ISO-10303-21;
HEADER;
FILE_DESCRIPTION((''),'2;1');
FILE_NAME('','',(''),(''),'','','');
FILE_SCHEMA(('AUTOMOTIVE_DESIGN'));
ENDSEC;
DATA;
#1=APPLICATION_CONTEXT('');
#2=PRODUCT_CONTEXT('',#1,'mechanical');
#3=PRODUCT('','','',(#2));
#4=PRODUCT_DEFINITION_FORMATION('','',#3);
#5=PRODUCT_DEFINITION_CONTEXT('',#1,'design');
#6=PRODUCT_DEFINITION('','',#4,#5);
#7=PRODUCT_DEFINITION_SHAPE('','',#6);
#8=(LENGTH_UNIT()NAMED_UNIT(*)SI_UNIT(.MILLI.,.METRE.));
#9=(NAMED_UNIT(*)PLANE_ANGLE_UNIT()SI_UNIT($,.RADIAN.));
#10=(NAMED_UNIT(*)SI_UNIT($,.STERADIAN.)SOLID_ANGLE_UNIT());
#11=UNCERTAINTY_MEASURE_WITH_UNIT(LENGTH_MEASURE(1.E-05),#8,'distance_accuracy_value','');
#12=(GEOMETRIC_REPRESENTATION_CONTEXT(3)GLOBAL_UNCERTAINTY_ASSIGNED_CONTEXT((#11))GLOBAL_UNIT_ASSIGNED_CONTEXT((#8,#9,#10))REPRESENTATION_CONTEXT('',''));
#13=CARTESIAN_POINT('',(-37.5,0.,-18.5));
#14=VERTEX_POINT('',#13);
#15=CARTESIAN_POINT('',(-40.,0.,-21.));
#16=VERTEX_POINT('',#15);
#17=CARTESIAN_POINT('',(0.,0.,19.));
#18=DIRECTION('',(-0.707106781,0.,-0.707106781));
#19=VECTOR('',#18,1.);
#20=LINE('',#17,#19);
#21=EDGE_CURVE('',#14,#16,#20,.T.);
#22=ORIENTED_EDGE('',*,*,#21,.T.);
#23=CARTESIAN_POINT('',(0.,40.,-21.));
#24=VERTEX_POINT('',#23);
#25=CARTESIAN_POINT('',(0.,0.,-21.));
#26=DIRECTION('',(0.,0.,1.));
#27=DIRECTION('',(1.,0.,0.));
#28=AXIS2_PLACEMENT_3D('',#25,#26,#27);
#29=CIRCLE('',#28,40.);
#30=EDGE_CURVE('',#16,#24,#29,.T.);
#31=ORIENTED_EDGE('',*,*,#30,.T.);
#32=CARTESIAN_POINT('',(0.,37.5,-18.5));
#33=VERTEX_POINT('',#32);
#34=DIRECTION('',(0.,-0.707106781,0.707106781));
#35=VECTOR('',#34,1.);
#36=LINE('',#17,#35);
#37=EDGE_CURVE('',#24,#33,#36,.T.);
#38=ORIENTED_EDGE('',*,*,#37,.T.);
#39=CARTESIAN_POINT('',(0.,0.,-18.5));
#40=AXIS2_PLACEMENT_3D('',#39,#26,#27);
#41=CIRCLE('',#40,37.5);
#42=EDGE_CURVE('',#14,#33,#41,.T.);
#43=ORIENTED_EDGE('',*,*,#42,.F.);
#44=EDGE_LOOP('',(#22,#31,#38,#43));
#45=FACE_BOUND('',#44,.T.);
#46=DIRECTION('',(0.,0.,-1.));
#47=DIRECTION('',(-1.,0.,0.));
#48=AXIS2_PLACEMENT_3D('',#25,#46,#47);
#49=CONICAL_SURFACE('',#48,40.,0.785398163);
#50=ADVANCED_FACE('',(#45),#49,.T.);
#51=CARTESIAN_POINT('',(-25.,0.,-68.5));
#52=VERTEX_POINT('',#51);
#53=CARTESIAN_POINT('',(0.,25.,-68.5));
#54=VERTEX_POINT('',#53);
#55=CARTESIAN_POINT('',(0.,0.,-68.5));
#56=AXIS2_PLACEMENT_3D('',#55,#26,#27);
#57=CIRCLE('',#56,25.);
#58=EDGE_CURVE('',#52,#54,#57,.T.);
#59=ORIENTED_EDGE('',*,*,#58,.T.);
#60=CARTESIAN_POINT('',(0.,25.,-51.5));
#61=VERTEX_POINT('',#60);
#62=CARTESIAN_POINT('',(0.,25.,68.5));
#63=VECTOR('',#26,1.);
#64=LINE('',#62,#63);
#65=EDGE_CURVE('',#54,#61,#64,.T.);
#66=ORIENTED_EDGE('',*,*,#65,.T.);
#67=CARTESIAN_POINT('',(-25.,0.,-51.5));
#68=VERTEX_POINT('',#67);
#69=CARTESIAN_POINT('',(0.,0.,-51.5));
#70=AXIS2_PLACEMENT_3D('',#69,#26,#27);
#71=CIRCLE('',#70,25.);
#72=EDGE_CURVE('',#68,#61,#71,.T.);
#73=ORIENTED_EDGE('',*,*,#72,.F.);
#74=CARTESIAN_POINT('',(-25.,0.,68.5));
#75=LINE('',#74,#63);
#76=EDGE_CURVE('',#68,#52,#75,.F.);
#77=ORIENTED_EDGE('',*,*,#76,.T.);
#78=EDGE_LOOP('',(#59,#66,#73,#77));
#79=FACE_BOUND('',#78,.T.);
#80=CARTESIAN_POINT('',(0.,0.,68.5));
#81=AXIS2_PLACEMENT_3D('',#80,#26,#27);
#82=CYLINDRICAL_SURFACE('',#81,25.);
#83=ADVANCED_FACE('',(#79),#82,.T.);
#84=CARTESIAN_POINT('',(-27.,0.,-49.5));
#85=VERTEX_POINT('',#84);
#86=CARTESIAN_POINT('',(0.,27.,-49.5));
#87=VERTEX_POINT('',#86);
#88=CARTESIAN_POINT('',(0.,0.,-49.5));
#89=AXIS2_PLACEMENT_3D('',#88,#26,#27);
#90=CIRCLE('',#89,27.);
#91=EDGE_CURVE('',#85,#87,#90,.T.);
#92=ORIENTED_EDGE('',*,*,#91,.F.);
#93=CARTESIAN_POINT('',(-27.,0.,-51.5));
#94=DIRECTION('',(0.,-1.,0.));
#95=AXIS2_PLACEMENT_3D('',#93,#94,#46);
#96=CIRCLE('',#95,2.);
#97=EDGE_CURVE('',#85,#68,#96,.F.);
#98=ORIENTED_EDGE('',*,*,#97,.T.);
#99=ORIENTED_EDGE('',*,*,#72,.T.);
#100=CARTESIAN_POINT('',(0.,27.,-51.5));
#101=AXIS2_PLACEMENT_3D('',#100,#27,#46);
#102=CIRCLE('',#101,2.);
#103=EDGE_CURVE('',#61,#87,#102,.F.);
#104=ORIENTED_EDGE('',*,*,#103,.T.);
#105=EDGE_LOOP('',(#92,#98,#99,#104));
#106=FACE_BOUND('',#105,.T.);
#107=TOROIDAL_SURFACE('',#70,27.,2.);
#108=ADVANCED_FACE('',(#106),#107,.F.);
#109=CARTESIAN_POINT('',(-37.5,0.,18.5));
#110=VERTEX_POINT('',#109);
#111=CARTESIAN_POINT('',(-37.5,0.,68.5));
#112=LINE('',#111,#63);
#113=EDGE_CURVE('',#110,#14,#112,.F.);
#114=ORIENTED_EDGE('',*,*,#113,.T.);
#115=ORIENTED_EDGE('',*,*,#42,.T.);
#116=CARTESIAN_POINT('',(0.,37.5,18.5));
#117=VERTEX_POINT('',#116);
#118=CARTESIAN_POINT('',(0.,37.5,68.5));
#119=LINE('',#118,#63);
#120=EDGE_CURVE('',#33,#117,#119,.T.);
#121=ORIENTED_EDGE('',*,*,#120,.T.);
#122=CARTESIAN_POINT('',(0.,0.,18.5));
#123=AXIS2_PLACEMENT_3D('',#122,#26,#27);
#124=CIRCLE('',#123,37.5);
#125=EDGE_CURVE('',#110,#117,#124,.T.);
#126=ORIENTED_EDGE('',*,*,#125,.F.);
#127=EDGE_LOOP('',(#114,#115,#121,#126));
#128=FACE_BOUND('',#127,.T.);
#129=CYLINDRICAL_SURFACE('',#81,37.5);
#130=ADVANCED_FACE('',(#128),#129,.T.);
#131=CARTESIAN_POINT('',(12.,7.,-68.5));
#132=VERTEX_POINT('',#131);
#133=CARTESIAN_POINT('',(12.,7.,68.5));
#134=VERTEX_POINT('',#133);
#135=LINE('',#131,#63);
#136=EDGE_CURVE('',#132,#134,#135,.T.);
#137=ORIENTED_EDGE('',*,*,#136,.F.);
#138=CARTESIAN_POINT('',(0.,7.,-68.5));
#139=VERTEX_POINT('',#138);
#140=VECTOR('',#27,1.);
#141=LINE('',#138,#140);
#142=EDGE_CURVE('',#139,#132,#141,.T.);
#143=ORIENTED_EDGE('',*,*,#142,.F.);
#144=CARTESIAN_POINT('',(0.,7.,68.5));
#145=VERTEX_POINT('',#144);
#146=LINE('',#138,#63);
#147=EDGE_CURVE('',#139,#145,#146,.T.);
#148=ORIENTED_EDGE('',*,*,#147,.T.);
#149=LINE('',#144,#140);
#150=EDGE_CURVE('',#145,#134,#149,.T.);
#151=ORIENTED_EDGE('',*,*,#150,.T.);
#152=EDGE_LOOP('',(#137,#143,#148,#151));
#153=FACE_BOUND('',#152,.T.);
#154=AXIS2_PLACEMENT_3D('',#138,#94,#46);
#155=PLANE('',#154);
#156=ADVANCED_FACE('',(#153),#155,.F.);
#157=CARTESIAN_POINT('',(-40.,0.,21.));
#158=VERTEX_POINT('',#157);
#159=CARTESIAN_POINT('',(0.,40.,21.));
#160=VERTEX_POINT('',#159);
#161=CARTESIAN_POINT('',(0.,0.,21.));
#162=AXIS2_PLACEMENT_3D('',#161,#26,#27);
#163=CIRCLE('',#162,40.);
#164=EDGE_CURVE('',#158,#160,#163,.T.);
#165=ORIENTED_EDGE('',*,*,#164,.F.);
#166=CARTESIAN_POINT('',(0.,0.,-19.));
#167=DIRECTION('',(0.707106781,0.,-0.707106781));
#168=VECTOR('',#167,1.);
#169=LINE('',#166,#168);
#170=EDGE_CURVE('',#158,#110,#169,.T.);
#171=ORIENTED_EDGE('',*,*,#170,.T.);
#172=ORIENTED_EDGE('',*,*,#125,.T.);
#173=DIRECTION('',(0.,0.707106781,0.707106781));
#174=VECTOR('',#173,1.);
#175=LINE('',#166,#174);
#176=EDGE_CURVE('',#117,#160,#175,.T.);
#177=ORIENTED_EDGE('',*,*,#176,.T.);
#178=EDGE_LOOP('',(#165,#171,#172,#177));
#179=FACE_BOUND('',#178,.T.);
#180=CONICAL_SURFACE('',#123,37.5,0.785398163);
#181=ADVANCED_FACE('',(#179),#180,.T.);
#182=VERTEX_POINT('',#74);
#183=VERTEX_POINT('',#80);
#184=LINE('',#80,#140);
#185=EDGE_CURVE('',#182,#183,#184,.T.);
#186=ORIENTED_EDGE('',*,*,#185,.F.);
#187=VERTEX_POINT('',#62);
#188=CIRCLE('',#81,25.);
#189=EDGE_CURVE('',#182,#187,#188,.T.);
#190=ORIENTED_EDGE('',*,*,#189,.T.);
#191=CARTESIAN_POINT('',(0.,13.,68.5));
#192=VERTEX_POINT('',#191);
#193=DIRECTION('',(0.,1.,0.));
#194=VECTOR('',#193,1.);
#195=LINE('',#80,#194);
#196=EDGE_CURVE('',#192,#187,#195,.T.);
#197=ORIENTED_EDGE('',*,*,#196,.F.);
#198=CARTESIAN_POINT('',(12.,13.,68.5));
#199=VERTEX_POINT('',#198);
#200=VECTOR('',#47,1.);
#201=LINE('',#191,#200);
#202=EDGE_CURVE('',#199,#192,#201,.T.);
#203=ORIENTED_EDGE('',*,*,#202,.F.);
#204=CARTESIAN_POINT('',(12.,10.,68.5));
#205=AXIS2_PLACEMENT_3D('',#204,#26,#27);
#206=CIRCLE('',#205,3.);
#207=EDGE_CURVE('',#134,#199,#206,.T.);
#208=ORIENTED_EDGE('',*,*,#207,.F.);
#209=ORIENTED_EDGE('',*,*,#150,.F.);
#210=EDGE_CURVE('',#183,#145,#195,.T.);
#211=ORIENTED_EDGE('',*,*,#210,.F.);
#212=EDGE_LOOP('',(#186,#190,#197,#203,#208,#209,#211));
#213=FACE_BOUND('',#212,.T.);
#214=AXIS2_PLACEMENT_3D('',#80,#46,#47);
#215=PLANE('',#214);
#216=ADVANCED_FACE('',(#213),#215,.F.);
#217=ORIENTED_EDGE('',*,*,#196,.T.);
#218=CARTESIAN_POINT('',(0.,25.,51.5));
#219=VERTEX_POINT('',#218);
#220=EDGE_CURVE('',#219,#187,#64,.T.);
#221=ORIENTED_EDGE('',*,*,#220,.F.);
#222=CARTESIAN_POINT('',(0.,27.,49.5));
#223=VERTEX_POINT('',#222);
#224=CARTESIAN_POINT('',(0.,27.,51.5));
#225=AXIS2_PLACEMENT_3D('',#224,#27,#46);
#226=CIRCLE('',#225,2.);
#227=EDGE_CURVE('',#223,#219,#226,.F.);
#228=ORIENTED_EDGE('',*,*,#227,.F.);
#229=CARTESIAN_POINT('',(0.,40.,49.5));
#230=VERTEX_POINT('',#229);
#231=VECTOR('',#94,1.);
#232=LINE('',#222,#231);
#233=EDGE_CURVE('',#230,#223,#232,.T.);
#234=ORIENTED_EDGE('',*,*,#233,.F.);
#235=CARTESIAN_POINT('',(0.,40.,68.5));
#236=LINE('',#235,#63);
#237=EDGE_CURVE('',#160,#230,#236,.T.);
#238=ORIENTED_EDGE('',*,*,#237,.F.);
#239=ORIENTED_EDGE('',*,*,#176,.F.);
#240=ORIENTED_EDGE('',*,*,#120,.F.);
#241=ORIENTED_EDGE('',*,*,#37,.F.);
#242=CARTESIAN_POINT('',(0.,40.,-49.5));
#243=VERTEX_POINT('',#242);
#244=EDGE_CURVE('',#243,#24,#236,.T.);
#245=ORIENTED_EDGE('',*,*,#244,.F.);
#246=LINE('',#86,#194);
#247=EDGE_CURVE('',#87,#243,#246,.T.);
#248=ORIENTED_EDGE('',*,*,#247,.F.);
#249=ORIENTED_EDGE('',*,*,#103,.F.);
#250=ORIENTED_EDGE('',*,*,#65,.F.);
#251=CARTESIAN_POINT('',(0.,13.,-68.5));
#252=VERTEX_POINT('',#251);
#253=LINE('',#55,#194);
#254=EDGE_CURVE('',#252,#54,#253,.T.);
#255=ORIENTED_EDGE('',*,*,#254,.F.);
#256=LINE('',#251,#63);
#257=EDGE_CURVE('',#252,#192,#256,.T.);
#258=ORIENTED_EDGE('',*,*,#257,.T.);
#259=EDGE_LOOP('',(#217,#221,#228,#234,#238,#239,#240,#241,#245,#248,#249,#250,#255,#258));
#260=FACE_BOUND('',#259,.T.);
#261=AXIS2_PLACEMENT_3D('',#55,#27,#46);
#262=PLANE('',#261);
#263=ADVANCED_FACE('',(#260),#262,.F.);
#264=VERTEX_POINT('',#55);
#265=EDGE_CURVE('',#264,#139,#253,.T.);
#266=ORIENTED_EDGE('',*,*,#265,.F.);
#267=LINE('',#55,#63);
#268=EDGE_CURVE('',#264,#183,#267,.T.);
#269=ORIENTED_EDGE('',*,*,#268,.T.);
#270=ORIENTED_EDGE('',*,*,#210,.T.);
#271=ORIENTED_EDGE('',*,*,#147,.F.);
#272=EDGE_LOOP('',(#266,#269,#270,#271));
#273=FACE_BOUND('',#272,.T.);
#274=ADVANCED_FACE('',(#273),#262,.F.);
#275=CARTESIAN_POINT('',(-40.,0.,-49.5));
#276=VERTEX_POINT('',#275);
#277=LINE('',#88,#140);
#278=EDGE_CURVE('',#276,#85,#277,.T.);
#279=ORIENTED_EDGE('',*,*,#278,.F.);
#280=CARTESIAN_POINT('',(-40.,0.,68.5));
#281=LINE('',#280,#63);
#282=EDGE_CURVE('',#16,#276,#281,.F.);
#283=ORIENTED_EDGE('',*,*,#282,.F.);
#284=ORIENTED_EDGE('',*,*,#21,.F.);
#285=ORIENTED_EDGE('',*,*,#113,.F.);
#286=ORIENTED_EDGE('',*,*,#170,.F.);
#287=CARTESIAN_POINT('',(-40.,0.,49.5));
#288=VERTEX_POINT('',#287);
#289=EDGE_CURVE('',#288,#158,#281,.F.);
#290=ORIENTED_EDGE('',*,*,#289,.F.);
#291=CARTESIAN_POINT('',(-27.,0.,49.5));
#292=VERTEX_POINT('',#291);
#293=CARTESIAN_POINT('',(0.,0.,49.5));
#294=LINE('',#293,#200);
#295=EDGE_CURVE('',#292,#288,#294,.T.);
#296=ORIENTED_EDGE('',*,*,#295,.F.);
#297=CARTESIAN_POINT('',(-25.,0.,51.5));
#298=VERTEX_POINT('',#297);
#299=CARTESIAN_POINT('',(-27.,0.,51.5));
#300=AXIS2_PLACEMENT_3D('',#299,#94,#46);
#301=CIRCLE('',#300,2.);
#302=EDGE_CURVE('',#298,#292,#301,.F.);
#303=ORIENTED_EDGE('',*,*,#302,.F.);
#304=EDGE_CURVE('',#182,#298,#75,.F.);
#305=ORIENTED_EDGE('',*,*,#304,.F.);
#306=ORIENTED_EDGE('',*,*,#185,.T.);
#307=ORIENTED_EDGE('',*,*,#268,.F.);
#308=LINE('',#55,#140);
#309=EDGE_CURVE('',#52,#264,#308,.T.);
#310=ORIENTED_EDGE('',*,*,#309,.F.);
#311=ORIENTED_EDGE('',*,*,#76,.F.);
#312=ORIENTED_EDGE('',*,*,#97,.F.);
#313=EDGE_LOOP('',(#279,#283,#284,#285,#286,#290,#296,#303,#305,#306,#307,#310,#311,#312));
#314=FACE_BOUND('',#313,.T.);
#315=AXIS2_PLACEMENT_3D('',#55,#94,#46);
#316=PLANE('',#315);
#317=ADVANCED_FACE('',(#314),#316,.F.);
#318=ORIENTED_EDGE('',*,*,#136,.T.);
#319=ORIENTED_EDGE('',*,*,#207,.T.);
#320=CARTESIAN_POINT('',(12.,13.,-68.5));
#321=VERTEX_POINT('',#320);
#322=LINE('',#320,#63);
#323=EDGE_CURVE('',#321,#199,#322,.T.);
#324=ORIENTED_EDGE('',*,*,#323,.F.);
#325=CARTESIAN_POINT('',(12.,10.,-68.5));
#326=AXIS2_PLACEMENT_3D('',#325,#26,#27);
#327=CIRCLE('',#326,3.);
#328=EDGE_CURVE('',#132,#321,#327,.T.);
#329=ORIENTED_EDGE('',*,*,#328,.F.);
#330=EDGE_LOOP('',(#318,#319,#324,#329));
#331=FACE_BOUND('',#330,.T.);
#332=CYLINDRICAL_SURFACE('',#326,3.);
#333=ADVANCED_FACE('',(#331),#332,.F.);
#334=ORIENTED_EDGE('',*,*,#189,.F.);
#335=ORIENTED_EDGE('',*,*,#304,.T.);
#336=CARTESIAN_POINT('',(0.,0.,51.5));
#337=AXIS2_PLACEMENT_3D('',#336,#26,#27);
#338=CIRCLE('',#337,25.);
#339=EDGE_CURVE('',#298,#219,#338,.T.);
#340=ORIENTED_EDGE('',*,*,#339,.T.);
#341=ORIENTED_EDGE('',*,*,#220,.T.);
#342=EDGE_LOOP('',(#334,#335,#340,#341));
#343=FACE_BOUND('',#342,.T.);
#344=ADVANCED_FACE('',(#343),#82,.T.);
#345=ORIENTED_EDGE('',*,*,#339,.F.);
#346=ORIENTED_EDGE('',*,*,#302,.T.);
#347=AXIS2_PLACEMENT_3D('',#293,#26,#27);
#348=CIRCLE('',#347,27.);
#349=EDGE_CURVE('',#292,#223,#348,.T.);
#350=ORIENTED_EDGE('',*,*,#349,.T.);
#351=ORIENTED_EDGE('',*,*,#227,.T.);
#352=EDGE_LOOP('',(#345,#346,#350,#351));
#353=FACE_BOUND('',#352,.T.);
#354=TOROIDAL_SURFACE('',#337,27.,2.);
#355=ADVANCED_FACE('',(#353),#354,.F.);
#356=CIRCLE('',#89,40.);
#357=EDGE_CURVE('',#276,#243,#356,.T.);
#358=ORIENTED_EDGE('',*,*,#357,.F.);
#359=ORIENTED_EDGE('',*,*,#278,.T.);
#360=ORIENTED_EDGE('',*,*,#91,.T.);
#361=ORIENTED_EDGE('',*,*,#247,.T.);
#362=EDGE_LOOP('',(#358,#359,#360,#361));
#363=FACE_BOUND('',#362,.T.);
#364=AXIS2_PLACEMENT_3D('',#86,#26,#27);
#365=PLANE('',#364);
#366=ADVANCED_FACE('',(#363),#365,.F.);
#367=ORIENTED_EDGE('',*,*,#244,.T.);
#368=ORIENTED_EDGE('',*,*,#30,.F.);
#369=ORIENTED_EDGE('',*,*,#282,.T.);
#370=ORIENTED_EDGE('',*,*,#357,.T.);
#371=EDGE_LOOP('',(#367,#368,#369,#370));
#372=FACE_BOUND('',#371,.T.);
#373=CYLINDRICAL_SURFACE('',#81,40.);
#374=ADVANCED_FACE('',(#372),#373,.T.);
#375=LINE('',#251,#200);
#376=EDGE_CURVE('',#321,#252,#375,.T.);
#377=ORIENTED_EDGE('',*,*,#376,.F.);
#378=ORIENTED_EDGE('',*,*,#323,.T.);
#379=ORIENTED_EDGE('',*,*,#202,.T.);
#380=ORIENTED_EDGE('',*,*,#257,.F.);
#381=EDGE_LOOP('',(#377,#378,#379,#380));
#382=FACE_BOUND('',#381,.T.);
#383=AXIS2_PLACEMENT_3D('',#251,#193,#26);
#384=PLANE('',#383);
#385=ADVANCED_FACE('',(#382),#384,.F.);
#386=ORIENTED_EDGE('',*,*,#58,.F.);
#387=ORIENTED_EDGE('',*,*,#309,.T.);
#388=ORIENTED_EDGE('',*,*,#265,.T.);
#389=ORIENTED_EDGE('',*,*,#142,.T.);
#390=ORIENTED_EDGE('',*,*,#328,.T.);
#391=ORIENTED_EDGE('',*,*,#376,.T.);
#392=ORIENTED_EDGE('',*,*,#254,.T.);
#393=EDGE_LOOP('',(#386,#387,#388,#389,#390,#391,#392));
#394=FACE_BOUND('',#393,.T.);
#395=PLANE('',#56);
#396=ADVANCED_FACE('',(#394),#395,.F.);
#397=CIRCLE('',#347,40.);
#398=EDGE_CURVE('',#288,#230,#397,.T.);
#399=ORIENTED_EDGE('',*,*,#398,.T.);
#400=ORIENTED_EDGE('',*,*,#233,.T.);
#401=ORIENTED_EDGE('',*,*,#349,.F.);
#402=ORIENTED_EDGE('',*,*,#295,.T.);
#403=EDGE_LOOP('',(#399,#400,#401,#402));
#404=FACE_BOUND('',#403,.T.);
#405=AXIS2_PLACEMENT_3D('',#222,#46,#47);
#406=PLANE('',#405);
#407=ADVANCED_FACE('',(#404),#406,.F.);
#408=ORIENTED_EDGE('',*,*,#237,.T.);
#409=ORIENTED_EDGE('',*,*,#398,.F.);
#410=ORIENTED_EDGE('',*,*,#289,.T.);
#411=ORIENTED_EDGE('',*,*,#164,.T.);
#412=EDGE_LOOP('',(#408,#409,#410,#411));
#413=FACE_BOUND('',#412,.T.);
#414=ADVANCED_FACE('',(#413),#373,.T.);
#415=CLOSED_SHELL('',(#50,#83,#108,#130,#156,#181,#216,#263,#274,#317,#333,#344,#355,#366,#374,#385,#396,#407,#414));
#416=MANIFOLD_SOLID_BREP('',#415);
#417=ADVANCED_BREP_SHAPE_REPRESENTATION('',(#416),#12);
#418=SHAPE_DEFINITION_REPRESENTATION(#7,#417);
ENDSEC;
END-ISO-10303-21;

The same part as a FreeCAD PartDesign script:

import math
import FreeCAD as App
import Part
import Sketcher
from FreeCAD import Vector

doc = App.newDocument("Part")
body = doc.addObject("PartDesign::Body", "Body")

sketch1 = body.newObject("Sketcher::SketchObject", "Sketch")
sketch1.AttachmentSupport = (doc.getObject("YZ_Plane"), [""])
sketch1.MapMode = "FlatFace"
sketch1.addGeometry([
    Part.LineSegment(Vector(0, 68.5, 0), Vector(0, -68.5, 0)),
    Part.LineSegment(Vector(0, -68.5, 0), Vector(25, -68.5, 0)),
    Part.LineSegment(Vector(25, -68.5, 0), Vector(25, -51.5, 0)),
    Part.ArcOfCircle(Part.Circle(Vector(27, -51.5, 0), Vector(0, 0, 1), 2), math.radians(90), math.radians(180)),
    Part.LineSegment(Vector(27, -49.5, 0), Vector(40, -49.5, 0)),
    Part.LineSegment(Vector(40, -49.5, 0), Vector(40, -21, 0)),
    Part.LineSegment(Vector(40, -21, 0), Vector(37.5, -18.5, 0)),
    Part.LineSegment(Vector(37.5, -18.5, 0), Vector(37.5, 18.5, 0)),
    Part.LineSegment(Vector(37.5, 18.5, 0), Vector(40, 21, 0)),
    Part.LineSegment(Vector(40, 21, 0), Vector(40, 49.5, 0)),
    Part.LineSegment(Vector(40, 49.5, 0), Vector(27, 49.5, 0)),
    Part.ArcOfCircle(Part.Circle(Vector(27, 51.5, 0), Vector(0, 0, 1), 2), math.radians(-180), math.radians(-90)),
    Part.LineSegment(Vector(25, 51.5, 0), Vector(25, 68.5, 0)),
    Part.LineSegment(Vector(25, 68.5, 0), Vector(0, 68.5, 0)),
], False)
sketch1.addConstraint([
    Sketcher.Constraint("Coincident", 0, 2, 1, 1),
    Sketcher.Constraint("Coincident", 1, 2, 2, 1),
    Sketcher.Constraint("Tangent", 2, 2, 3, 2),
    Sketcher.Constraint("Tangent", 3, 1, 4, 1),
    Sketcher.Constraint("Coincident", 4, 2, 5, 1),
    Sketcher.Constraint("Coincident", 5, 2, 6, 1),
    Sketcher.Constraint("Coincident", 6, 2, 7, 1),
    Sketcher.Constraint("Coincident", 7, 2, 8, 1),
    Sketcher.Constraint("Coincident", 8, 2, 9, 1),
    Sketcher.Constraint("Coincident", 9, 2, 10, 1),
    Sketcher.Constraint("Tangent", 10, 2, 11, 2),
    Sketcher.Constraint("Tangent", 11, 1, 12, 1),
    Sketcher.Constraint("Coincident", 12, 2, 13, 1),
    Sketcher.Constraint("Coincident", 13, 2, 0, 1),
    Sketcher.Constraint("Vertical", 0),
    Sketcher.Constraint("Horizontal", 1),
    Sketcher.Constraint("Vertical", 2),
    Sketcher.Constraint("Horizontal", 4),
    Sketcher.Constraint("Vertical", 5),
    Sketcher.Constraint("Vertical", 7),
    Sketcher.Constraint("Vertical", 9),
    Sketcher.Constraint("Horizontal", 10),
    Sketcher.Constraint("Vertical", 12),
    Sketcher.Constraint("Horizontal", 13),
    Sketcher.Constraint("Equal", 3, 11),
    Sketcher.Constraint("Symmetric", 0, 2, 13, 2, -1, 1),
    Sketcher.Constraint("Symmetric", 3, 3, 11, 3, -1),
    Sketcher.Constraint("Symmetric", 5, 2, 8, 2, -1),
    Sketcher.Constraint("Perpendicular", 6, 8),
    Sketcher.Constraint("Equal", 6, 8),
    Sketcher.Constraint("Radius", 3, 2.0),
    Sketcher.Constraint("DistanceX", 1, 1, 1, 2, 25.0),
    Sketcher.Constraint("DistanceX", 4, 1, 4, 2, 13.0),
    Sketcher.Constraint("DistanceY", 0, 2, 0, 1, 137.0),
    Sketcher.Constraint("DistanceY", 2, 1, 2, 2, 17.0),
    Sketcher.Constraint("DistanceY", 7, 1, 7, 2, 37.0),
    Sketcher.Constraint("DistanceY", 5, 1, 5, 2, 28.5),
])
revolution = body.newObject("PartDesign::Revolution", "Revolution")
revolution.Profile = sketch1
revolution.ReferenceAxis = (sketch1, ["V_Axis"])
revolution.Angle = 360

sketch2 = body.newObject("Sketcher::SketchObject", "Sketch001")
sketch2.AttachmentSupport = (doc.getObject("XY_Plane"), [""])
sketch2.MapMode = "FlatFace"
sketch2.addGeometry([
    Part.LineSegment(Vector(-50, 55, 0), Vector(-50, 0, 0)),
    Part.LineSegment(Vector(-50, 0, 0), Vector(0, 0, 0)),
    Part.LineSegment(Vector(0, 0, 0), Vector(0, 55, 0)),
    Part.LineSegment(Vector(0, 55, 0), Vector(-50, 55, 0)),
], False)
sketch2.addConstraint([
    Sketcher.Constraint("Coincident", 0, 2, 1, 1),
    Sketcher.Constraint("Coincident", 1, 2, 2, 1),
    Sketcher.Constraint("Coincident", 2, 2, 3, 1),
    Sketcher.Constraint("Coincident", 3, 2, 0, 1),
    Sketcher.Constraint("Vertical", 0),
    Sketcher.Constraint("Horizontal", 1),
    Sketcher.Constraint("Vertical", 2),
    Sketcher.Constraint("Horizontal", 3),
    Sketcher.Constraint("Coincident", 1, 2, -1, 1),
    Sketcher.Constraint("DistanceX", 1, 1, 1, 2, 49.590286),
    Sketcher.Constraint("DistanceY", 0, 2, 0, 1, 55.327856),
])
pocket1 = body.newObject("PartDesign::Pocket", "Pocket")
pocket1.Profile = sketch2
pocket1.Type = "ThroughAll"
pocket1.Midplane = True

sketch3 = body.newObject("Sketcher::SketchObject", "Sketch002")
sketch3.AttachmentSupport = (doc.getObject("XY_Plane"), [""])
sketch3.MapMode = "FlatFace"
sketch3.addGeometry([
    Part.LineSegment(Vector(0, 7, 0), Vector(12, 7, 0)),
    Part.ArcOfCircle(Part.Circle(Vector(12, 10, 0), Vector(0, 0, 1), 3), math.radians(-90), math.radians(90)),
    Part.LineSegment(Vector(12, 13, 0), Vector(0, 13, 0)),
    Part.LineSegment(Vector(0, 13, 0), Vector(0, 7, 0)),
], False)
sketch3.addConstraint([
    Sketcher.Constraint("Tangent", 0, 2, 1, 1),
    Sketcher.Constraint("Tangent", 1, 2, 2, 1),
    Sketcher.Constraint("Coincident", 2, 2, 3, 1),
    Sketcher.Constraint("Coincident", 3, 2, 0, 1),
    Sketcher.Constraint("Horizontal", 0),
    Sketcher.Constraint("Horizontal", 2),
    Sketcher.Constraint("Vertical", 3),
    Sketcher.Constraint("PointOnObject", 2, 2, -2),
    Sketcher.Constraint("Radius", 1, 3.0),
    Sketcher.Constraint("DistanceX", 0, 1, 0, 2, 12.0),
    Sketcher.Constraint("DistanceY", -1, 1, 1, 3, 10.0),
])
pocket2 = body.newObject("PartDesign::Pocket", "Pocket001")
pocket2.Profile = sketch3
pocket2.Type = "ThroughAll"
pocket2.Midplane = True

doc.recompute()
